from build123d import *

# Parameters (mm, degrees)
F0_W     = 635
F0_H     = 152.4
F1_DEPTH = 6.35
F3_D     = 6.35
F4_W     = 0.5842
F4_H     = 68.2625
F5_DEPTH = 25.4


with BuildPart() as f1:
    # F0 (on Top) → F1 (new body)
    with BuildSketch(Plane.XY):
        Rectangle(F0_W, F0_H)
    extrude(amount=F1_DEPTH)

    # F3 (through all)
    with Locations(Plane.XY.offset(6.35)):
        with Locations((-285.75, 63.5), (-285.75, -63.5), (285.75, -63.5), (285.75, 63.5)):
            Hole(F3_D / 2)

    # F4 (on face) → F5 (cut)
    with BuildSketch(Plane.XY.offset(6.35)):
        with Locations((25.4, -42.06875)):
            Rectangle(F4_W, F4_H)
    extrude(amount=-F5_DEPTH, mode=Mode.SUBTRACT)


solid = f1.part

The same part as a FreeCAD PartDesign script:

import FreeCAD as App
import Part
import Sketcher
Q = App.Units.Quantity

doc = App.newDocument("Part")
body = doc.addObject("PartDesign::Body", "Body")

# Sketch on XY plane
sketch1 = body.newObject("Sketcher::SketchObject", "Sketch")
sketch1.AttachmentSupport = (doc.getObject("XY_Plane"), [""])
sketch1.MapMode = "FlatFace"
sketch1.addGeometry([
    Part.LineSegment(App.Vector(-317.5, 76.2, 0), App.Vector(-317.5, -76.2, 0)),
    Part.LineSegment(App.Vector(-317.5, -76.2, 0), App.Vector(317.5, -76.2, 0)),
    Part.LineSegment(App.Vector(317.5, -76.2, 0), App.Vector(317.5, 76.2, 0)),
    Part.LineSegment(App.Vector(317.5, 76.2, 0), App.Vector(-317.5, 76.2, 0)),
], False)
sketch1.addConstraint([
    Sketcher.Constraint("Coincident", 0, 2, 1, 1),
    Sketcher.Constraint("Coincident", 1, 2, 2, 1),
    Sketcher.Constraint("Coincident", 2, 2, 3, 1),
    Sketcher.Constraint("Coincident", 3, 2, 0, 1),
    Sketcher.Constraint("Vertical", 0),
    Sketcher.Constraint("Horizontal", 1),
    Sketcher.Constraint("Vertical", 2),
    Sketcher.Constraint("Horizontal", 3),
    Sketcher.Constraint("Symmetric", 0, 2, 2, 2, -1, 1),
    Sketcher.Constraint("DistanceX", 1, 1, 1, 2, Q("25 in")),
    Sketcher.Constraint("DistanceY", 0, 2, 0, 1, Q("6 in")),
])
pad1 = body.newObject("PartDesign::Pad", "Pad")
pad1.Profile = sketch1
pad1.Length = Q("0.25 in")

# Sketch on XY plane
sketch2 = body.newObject("Sketcher::SketchObject", "Sketch001")
sketch2.AttachmentSupport = (doc.getObject("XY_Plane"), [""])
sketch2.MapMode = "FlatFace"
sketch2.AttachmentOffset = App.Placement(App.Vector(0, 0, 0.25 * 25.4), App.Rotation())
sketch2.addGeometry([
    Part.Circle(App.Vector(-285.75, 63.5, 0), App.Vector(0, 0, 1), 3.175),
    Part.Circle(App.Vector(-285.75, -63.5, 0), App.Vector(0, 0, 1), 3.175),
    Part.Circle(App.Vector(285.75, -63.5, 0), App.Vector(0, 0, 1), 3.175),
    Part.Circle(App.Vector(285.75, 63.5, 0), App.Vector(0, 0, 1), 3.175),
], False)
sketch2.addConstraint([
    Sketcher.Constraint("Equal", 0, 1),
    Sketcher.Constraint("Equal", 1, 2),
    Sketcher.Constraint("Equal", 2, 3),
    Sketcher.Constraint("Symmetric", 0, 3, 2, 3, -1, 1),
    Sketcher.Constraint("Symmetric", 1, 3, 3, 3, -1, 1),
    Sketcher.Constraint("Symmetric", 1, 3, 2, 3, -2),
    Sketcher.Constraint("Diameter", 0, Q("0.25 in")),
    Sketcher.Constraint("DistanceY", 1, 3, 0, 3, Q("5 in")),
    Sketcher.Constraint("DistanceX", 1, 3, 2, 3, Q("22.5 in")),
])
doc.recompute()
hole = body.newObject("PartDesign::Hole", "Hole")
hole.Profile = sketch2
hole.ThreadType = "None"
hole.Diameter = Q("0.25 in")
hole.DepthType = "ThroughAll"

# Sketch on XY plane
sketch3 = body.newObject("Sketcher::SketchObject", "Sketch002")
sketch3.AttachmentSupport = (doc.getObject("XY_Plane"), [""])
sketch3.MapMode = "FlatFace"
sketch3.AttachmentOffset = App.Placement(App.Vector(0, 0, 0.25 * 25.4), App.Rotation())
sketch3.addGeometry([
    Part.LineSegment(App.Vector(25.1079, -7.9375, 0), App.Vector(25.1079, -76.2, 0)),
    Part.LineSegment(App.Vector(25.1079, -76.2, 0), App.Vector(25.6921, -76.2, 0)),
    Part.LineSegment(App.Vector(25.6921, -76.2, 0), App.Vector(25.6921, -7.9375, 0)),
    Part.LineSegment(App.Vector(25.6921, -7.9375, 0), App.Vector(25.1079, -7.9375, 0)),
], False)
sketch3.addConstraint([
    Sketcher.Constraint("Coincident", 0, 2, 1, 1),
    Sketcher.Constraint("Coincident", 1, 2, 2, 1),
    Sketcher.Constraint("Coincident", 2, 2, 3, 1),
    Sketcher.Constraint("Coincident", 3, 2, 0, 1),
    Sketcher.Constraint("Vertical", 0),
    Sketcher.Constraint("Horizontal", 1),
    Sketcher.Constraint("Vertical", 2),
    Sketcher.Constraint("Horizontal", 3),
    Sketcher.Constraint("DistanceY", 0, 2, -1, 1, Q("3 in")),
    Sketcher.Constraint("DistanceX", 1, 1, 1, 2, Q("0.023 in")),
    Sketcher.Constraint("DistanceY", 0, 2, 0, 1, Q("2.6875 in")),
    Sketcher.Constraint("DistanceX", -1, 1, 0, 2, Q("0.9885 in")),
])
pocket1 = body.newObject("PartDesign::Pocket", "Pocket")
pocket1.Profile = sketch3
pocket1.Length = Q("1 in")

doc.recompute()
